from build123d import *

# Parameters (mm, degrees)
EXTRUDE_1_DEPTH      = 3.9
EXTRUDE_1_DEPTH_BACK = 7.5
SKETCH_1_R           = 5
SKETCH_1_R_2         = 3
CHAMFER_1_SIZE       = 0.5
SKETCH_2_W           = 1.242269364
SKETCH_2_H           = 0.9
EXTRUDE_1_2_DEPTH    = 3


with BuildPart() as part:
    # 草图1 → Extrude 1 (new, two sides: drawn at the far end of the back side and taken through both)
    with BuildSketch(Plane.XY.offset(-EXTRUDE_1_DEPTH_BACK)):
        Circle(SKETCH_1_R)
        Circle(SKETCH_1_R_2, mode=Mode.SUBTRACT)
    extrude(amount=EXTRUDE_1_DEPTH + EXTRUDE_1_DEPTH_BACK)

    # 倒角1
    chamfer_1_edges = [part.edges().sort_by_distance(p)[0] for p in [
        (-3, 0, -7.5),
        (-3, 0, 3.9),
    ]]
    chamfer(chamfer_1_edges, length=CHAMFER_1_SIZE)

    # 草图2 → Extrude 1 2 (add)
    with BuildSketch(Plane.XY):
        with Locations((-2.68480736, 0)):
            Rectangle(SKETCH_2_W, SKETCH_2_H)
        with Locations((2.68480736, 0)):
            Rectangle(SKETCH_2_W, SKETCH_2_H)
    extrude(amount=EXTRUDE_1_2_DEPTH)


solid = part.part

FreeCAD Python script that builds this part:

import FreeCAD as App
import Part
import Sketcher
from FreeCAD import Vector


def edges_at(feature, points):
    """Names of the edges that pass closest to the given points."""
    edges = feature.Shape.Edges
    near = lambda p: min(range(len(edges)), key=lambda i: edges[i].distToShape(Part.Vertex(*p))[0])
    return sorted({f"Edge{near(p) + 1}" for p in points})


def add_polygon(sketch, points):
    """Adds a closed chain of lines whose ends are joined by coincident constraints."""
    first, n = sketch.GeometryCount, len(points)
    for a, b in zip(points, points[1:] + points[:1]):
        sketch.addGeometry(Part.LineSegment(App.Vector(*a, 0), App.Vector(*b, 0)), False)
    for i in range(n):
        sketch.addConstraint(Sketcher.Constraint("Coincident", first + i, 2, first + (i + 1) % n, 1))

doc = App.newDocument("Part")
params = doc.addObject("Spreadsheet::Sheet", "Params")
for row, (alias, value) in enumerate([
    ("sketch1_diameter", "10 mm"),
    ("sketch1_diameter2", "6 mm"),
    ("pad1_length", "3.9 mm"),
    ("pad1_length2", "7.5 mm"),
    ("chamfer_size", "0.5 mm"),
    ("sketch2_height", "0.9 mm"),
    ("pad2_length", "3 mm"),
], start=1):
    params.set(f"A{row}", alias)
    params.set(f"B{row}", "=" + value)
    params.setAlias(f"B{row}", alias)

body = doc.addObject("PartDesign::Body", "Body")

# Sketch on XY plane
sketch1 = doc.addObject("Sketcher::SketchObject", "Sketch")
body.addObject(sketch1)
sketch1.AttachmentSupport = (doc.XY_Plane, [""])
sketch1.MapMode = "FlatFace"
sketch1.addGeometry([
    Part.Circle(Vector(0, 0, 0), Vector(0, 0, 1), 5),
    Part.Circle(Vector(0, 0, 0), Vector(0, 0, 1), 3),
], False)
sketch1.addConstraint([
    Sketcher.Constraint("Coincident", 0, 3, -1, 1),
    Sketcher.Constraint("Coincident", 1, 3, -1, 1),
    Sketcher.Constraint("Diameter", 0, 10.0),
    Sketcher.Constraint("Diameter", 1, 6.0),
])
sketch1.setExpression("Constraints[2]", "Params.sketch1_diameter")
sketch1.setExpression("Constraints[3]", "Params.sketch1_diameter2")
pad1 = doc.addObject("PartDesign::Pad", "Pad")
body.addObject(pad1)
pad1.Profile = sketch1
pad1.Type = "TwoLengths"
pad1.setExpression("Length", "Params.pad1_length")
pad1.setExpression("Length2", "Params.pad1_length2")
doc.recompute()

chamfer = doc.addObject("PartDesign::Chamfer", "Chamfer")
body.addObject(chamfer)
chamfer.Base = (pad1, edges_at(pad1, [(-3, 0, -7.5), (-3, 0, 3.9)]))
chamfer.setExpression("Size", "Params.chamfer_size")

# Sketch on XY plane
sketch2 = doc.addObject("Sketcher::SketchObject", "Sketch001")
body.addObject(sketch2)
sketch2.AttachmentSupport = (doc.XY_Plane, [""])
sketch2.MapMode = "FlatFace"
add_polygon(sketch2, [(-3.305942, 0.45), (-3.305942, -0.45), (-2.063673, -0.45), (-2.063673, 0.45)])  # lines 0-3
add_polygon(sketch2, [(2.063673, 0.45), (2.063673, -0.45), (3.305942, -0.45), (3.305942, 0.45)])  # lines 4-7
sketch2.addConstraint([
    Sketcher.Constraint("Vertical", 0),
    Sketcher.Constraint("Horizontal", 1),
    Sketcher.Constraint("Vertical", 2),
    Sketcher.Constraint("Horizontal", 3),
    Sketcher.Constraint("Vertical", 4),
    Sketcher.Constraint("Horizontal", 5),
    Sketcher.Constraint("Vertical", 6),
    Sketcher.Constraint("Horizontal", 7),
    Sketcher.Constraint("Symmetric", 2, 2, 4, 2, -1, 1),
    Sketcher.Constraint("Symmetric", 0, 2, 6, 2, -1, 1),
    Sketcher.Constraint("Horizontal", 1, 2, 4, 2),
    Sketcher.Constraint("DistanceY", 0, 2, 0, 1, 0.9),
    Sketcher.Constraint("DistanceX", 1, 1, 1, 2, 1.242269),
    Sketcher.Constraint("DistanceX", 0, 2, -1, 1, 3.305942),
])
sketch2.setExpression("Constraints[19]", "Params.sketch2_height")
pad2 = doc.addObject("PartDesign::Pad", "Pad001")
body.addObject(pad2)
pad2.Profile = sketch2
pad2.setExpression("Length", "Params.pad2_length")

doc.recompute()
